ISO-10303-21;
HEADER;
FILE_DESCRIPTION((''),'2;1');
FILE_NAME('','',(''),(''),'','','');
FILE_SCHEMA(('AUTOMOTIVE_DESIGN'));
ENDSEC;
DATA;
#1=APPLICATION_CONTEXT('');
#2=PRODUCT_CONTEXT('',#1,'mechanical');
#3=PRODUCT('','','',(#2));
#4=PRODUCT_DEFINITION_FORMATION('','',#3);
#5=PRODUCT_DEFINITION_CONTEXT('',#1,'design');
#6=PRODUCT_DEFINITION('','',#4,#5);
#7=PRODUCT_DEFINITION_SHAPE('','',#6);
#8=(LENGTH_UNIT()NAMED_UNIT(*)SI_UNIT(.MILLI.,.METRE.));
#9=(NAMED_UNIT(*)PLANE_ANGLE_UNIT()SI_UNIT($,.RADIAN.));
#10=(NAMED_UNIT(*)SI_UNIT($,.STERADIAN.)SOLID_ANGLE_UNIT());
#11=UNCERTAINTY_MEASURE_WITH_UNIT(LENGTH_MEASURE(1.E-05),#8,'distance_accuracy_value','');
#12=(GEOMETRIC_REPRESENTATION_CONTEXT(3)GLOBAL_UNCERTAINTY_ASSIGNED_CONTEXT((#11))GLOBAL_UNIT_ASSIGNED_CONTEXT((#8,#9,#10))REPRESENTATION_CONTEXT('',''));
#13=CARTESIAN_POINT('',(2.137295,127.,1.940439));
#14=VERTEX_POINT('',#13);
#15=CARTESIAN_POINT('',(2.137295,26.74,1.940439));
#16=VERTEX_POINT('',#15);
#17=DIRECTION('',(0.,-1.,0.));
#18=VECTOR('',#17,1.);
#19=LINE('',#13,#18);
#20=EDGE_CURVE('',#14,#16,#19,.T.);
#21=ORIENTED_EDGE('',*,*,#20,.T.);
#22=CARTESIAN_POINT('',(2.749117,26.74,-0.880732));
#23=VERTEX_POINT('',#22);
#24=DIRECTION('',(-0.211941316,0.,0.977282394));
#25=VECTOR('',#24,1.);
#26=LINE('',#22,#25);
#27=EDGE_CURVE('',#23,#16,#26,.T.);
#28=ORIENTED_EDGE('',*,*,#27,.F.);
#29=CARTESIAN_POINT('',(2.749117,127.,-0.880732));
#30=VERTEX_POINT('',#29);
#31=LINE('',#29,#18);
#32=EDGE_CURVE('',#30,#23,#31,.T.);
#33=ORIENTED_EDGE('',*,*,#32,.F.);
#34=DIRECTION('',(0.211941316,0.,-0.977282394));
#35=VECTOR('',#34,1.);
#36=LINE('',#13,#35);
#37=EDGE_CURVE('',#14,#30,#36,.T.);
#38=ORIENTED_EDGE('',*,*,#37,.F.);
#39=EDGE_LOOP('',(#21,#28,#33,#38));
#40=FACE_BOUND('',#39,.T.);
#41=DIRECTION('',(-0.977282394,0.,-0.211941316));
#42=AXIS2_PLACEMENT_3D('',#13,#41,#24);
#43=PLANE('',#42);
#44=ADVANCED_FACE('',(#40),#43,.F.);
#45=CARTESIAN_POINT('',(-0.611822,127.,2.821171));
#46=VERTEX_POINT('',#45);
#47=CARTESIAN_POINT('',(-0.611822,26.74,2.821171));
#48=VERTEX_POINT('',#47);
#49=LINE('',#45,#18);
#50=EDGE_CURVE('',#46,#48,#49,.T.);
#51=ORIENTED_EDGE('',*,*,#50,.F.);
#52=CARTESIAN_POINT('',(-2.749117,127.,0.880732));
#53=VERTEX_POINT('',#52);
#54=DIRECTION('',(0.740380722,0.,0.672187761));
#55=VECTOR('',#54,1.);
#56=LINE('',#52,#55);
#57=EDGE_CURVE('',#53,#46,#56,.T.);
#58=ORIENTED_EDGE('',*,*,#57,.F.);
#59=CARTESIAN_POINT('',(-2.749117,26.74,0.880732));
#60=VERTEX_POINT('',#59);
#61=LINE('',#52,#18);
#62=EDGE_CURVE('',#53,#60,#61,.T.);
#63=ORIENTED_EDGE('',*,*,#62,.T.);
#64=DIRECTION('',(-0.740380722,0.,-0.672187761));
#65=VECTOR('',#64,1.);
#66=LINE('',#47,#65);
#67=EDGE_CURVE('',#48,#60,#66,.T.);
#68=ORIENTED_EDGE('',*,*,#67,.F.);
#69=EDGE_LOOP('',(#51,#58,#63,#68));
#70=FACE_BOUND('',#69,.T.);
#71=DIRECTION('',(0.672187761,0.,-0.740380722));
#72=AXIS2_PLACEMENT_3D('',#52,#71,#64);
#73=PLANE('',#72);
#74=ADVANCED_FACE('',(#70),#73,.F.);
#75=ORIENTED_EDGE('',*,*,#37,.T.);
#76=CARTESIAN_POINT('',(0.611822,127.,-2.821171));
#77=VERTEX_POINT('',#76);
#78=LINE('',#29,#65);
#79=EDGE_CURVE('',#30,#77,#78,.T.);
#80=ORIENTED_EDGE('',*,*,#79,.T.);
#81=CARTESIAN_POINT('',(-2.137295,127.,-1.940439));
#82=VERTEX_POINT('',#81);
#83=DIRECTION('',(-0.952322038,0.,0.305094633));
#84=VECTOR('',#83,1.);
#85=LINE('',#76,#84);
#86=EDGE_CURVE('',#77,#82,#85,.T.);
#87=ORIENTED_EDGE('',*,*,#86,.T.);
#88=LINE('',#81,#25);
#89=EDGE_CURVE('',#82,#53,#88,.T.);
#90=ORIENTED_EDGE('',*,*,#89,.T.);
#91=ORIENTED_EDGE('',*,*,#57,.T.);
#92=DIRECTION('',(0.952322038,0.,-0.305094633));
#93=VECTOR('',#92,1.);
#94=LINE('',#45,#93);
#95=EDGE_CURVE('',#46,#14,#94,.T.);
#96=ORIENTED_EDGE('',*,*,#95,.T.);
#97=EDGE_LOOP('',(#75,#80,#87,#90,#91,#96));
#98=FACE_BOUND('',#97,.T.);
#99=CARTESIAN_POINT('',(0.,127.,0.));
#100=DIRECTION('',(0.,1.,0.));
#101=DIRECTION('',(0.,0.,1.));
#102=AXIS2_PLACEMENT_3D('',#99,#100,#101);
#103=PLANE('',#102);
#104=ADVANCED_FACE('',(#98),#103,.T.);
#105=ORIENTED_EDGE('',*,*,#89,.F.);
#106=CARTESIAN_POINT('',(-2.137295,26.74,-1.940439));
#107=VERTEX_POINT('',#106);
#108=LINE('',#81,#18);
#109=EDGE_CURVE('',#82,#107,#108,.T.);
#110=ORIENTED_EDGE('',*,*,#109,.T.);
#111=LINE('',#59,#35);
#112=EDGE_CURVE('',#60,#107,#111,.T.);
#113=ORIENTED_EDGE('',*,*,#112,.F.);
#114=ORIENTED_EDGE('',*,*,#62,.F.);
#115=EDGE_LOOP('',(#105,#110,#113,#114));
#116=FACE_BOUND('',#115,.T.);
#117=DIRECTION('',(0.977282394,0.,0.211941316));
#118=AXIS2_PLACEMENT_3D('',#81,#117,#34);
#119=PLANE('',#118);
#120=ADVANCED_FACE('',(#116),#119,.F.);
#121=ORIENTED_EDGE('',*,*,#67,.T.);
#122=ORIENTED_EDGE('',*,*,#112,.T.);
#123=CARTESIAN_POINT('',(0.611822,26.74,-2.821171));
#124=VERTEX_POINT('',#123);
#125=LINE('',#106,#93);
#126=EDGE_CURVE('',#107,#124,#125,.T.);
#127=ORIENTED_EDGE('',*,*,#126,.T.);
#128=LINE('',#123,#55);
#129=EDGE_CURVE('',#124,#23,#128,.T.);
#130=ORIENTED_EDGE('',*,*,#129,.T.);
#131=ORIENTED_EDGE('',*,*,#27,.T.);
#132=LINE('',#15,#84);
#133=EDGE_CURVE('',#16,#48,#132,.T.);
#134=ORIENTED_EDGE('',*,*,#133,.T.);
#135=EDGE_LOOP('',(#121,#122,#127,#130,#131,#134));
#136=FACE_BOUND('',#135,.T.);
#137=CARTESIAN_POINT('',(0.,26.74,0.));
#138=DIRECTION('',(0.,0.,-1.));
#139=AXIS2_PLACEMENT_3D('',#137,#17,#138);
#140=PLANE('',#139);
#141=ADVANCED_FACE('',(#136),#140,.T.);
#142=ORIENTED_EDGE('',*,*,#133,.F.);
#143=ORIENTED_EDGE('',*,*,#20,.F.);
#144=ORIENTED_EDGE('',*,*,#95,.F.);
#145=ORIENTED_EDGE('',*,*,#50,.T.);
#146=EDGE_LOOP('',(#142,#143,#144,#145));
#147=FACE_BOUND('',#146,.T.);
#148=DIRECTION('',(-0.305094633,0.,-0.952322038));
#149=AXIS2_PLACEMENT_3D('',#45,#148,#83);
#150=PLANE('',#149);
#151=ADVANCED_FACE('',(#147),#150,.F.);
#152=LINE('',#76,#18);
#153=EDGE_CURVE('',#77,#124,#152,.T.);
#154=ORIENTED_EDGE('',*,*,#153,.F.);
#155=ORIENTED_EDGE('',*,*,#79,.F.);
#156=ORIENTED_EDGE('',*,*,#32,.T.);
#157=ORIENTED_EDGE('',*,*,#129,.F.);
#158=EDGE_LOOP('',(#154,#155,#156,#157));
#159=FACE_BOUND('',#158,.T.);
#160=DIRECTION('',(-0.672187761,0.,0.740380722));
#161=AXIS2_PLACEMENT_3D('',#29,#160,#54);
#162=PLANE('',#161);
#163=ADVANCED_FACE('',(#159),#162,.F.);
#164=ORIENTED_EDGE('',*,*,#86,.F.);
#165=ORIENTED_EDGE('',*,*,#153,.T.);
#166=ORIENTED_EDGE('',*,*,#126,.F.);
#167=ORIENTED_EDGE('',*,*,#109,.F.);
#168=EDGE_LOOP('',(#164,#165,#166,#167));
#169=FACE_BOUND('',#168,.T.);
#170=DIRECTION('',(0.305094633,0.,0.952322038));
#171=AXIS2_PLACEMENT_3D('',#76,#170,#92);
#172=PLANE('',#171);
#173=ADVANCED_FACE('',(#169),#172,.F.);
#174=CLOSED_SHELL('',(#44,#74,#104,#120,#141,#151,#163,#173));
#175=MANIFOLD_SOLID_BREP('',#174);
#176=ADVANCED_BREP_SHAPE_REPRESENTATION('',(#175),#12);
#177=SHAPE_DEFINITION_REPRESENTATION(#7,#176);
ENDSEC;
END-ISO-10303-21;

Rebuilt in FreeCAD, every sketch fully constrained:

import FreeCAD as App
import Part
import Sketcher
from FreeCAD import Vector


def add_polygon(sketch, points):
    """Adds a closed chain of lines whose ends are joined by coincident constraints."""
    first, n = sketch.GeometryCount, len(points)
    for a, b in zip(points, points[1:] + points[:1]):
        sketch.addGeometry(Part.LineSegment(App.Vector(*a, 0), App.Vector(*b, 0)), False)
    for i in range(n):
        sketch.addConstraint(Sketcher.Constraint("Coincident", first + i, 2, first + (i + 1) % n, 1))

doc = App.newDocument("Part")
params = doc.addObject("Spreadsheet::Sheet", "Params")
for row, (alias, value) in enumerate([
    ("pad1_length", "5 in"),
    ("pocket1_length", "1.5 in"),
    ("pad2_length", "0.1 in"),
    ("pocket2_length", "50 mm"),
    ("pad3_length", "25 mm"),
    ("pad4_length", "13.5 mm"),
    ("pad5_length", "0.8 in"),
], start=1):
    params.set(f"A{row}", alias)
    params.set(f"B{row}", "=" + value)
    params.setAlias(f"B{row}", alias)

body = doc.addObject("PartDesign::Body", "Body")

sketch1 = body.newObject("Sketcher::SketchObject", "Sketch")
sketch1.AttachmentSupport = (doc.getObject("XZ_Plane"), [""])
sketch1.MapMode = "FlatFace"
add_polygon(sketch1, [(2.1, 1.9), (2.7, -0.9), (0.6, -2.8), (-2.1, -1.9), (-2.7, 0.9), (-0.6, 2.8)])
sketch1.addConstraint(Sketcher.Constraint("Symmetric", 0, 2, 3, 2, -1, 1))
sketch1.addConstraint(Sketcher.Constraint("Symmetric", 1, 2, 4, 2, -1, 1))
sketch1.addConstraint(Sketcher.Constraint("Symmetric", 2, 2, 5, 2, -1, 1))
sketch1.addConstraint(Sketcher.Constraint("Equal", 0, 1))
sketch1.addConstraint(Sketcher.Constraint("Equal", 1, 2))
sketch1.addConstraint(Sketcher.Constraint("Distance", 0, 2.886751))
sketch1.addConstraint(Sketcher.Constraint("DistanceX", -1, 1, 1, 2, 0.611822))
sketch1.addConstraint(Sketcher.Constraint("DistanceY", 1, 2, -1, 1, 2.821171))
sketch1.addConstraint(Sketcher.Constraint("DistanceY", 2, 2, -1, 1, 1.940439))
pad1 = body.newObject("PartDesign::Pad", "Pad")
pad1.Profile = sketch1
pad1.setExpression("Length", "Params.pad1_length")
pad1.Reversed = True

sketch2 = body.newObject("Sketcher::SketchObject", "Sketch001")
sketch2.AttachmentSupport = (doc.getObject("XZ_Plane"), [""])
sketch2.MapMode = "FlatFace"
add_polygon(sketch2, [(-13, 10), (-13, -8), (7, -8), (7, 10)])
sketch2.addConstraint(Sketcher.Constraint("Vertical", 0))
sketch2.addConstraint(Sketcher.Constraint("Horizontal", 1))
sketch2.addConstraint(Sketcher.Constraint("Vertical", 2))
sketch2.addConstraint(Sketcher.Constraint("Horizontal", 3))
sketch2.addConstraint(Sketcher.Constraint("DistanceX", 0, 2, -1, 1, 13.2192))
sketch2.addConstraint(Sketcher.Constraint("DistanceX", 1, 1, 1, 2, 20.194547))
sketch2.addConstraint(Sketcher.Constraint("DistanceY", 0, 2, 0, 1, 18.170774))
sketch2.addConstraint(Sketcher.Constraint("DistanceY", 0, 2, -1, 1, 8.313967))
pocket1 = body.newObject("PartDesign::Pocket", "Pocket")
pocket1.Profile = sketch2
pocket1.setExpression("Length", "Params.pocket1_length")

sketch3 = body.newObject("Sketcher::SketchObject", "Sketch002")
sketch3.AttachmentSupport = (doc.getObject("XZ_Plane"), [""])
sketch3.MapMode = "FlatFace"
sketch3.AttachmentOffset = App.Placement(Vector(0, 0, -1.5 * 25.4), App.Rotation())
add_polygon(sketch3, [(0.6, -2.8), (2.7, -0.9), (2.1, 1.9), (-0.6, 2.8), (-2.7, 0.9), (-2.1, -1.9)])
sketch3.addConstraint(Sketcher.Constraint("Symmetric", 0, 2, 3, 2, -1, 1))
sketch3.addConstraint(Sketcher.Constraint("Symmetric", 1, 2, 4, 2, -1, 1))
sketch3.addConstraint(Sketcher.Constraint("Symmetric", 2, 2, 5, 2, -1, 1))
sketch3.addConstraint(Sketcher.Constraint("Equal", 0, 1))
sketch3.addConstraint(Sketcher.Constraint("Equal", 1, 2))
sketch3.addConstraint(Sketcher.Constraint("Distance", 0, 2.886751))
sketch3.addConstraint(Sketcher.Constraint("DistanceY", -1, 1, 1, 2, 1.940439))
sketch3.addConstraint(Sketcher.Constraint("DistanceX", 2, 2, -1, 1, 0.611822))
sketch3.addConstraint(Sketcher.Constraint("DistanceY", -1, 1, 2, 2, 2.821171))
pad2 = body.newObject("PartDesign::Pad", "Pad001")
pad2.Profile = sketch3
pad2.setExpression("Length", "Params.pad2_length")

sketch4 = body.newObject("Sketcher::SketchObject", "Sketch003")
sketch4.AttachmentSupport = (doc.getObject("XZ_Plane"), [""])
sketch4.MapMode = "FlatFace"
sketch4.AttachmentOffset = App.Placement(Vector(0, 0, -1.4 * 25.4), App.Rotation())
add_polygon(sketch4, [(-19, 10), (-19, -12), (16, -12), (16, 10)])
sketch4.addConstraint(Sketcher.Constraint("Vertical", 0))
sketch4.addConstraint(Sketcher.Constraint("Horizontal", 1))
sketch4.addConstraint(Sketcher.Constraint("Vertical", 2))
sketch4.addConstraint(Sketcher.Constraint("Horizontal", 3))
sketch4.addConstraint(Sketcher.Constraint("DistanceY", 0, 2, 0, 1, 22.340459))
sketch4.addConstraint(Sketcher.Constraint("DistanceX", 1, 1, 1, 2, 34.517573))
sketch4.addConstraint(Sketcher.Constraint("DistanceX", -1, 1, 1, 2, 15.910529))
sketch4.addConstraint(Sketcher.Constraint("DistanceY", -1, 1, 2, 2, 10.137651))
pocket2 = body.newObject("PartDesign::Pocket", "Pocket001")
pocket2.Profile = sketch4
pocket2.setExpression("Length", "Params.pocket2_length")

sketch5 = body.newObject("Sketcher::SketchObject", "Sketch004")
sketch5.AttachmentSupport = (doc.getObject("XZ_Plane"), [""])
sketch5.MapMode = "FlatFace"
sketch5.AttachmentOffset = App.Placement(Vector(0, 0, -85.56), App.Rotation())
add_polygon(sketch5, [(0.6, -2.8), (2.7, -0.9), (2.1, 1.9), (-0.6, 2.8), (-2.7, 0.9), (-2.1, -1.9)])
sketch5.addConstraint(Sketcher.Constraint("Symmetric", 0, 2, 3, 2, -1, 1))
sketch5.addConstraint(Sketcher.Constraint("Symmetric", 1, 2, 4, 2, -1, 1))
sketch5.addConstraint(Sketcher.Constraint("Symmetric", 2, 2, 5, 2, -1, 1))
sketch5.addConstraint(Sketcher.Constraint("Equal", 0, 1))
sketch5.addConstraint(Sketcher.Constraint("Equal", 1, 2))
sketch5.addConstraint(Sketcher.Constraint("Distance", 0, 2.886751))
sketch5.addConstraint(Sketcher.Constraint("DistanceY", -1, 1, 1, 2, 1.940439))
sketch5.addConstraint(Sketcher.Constraint("DistanceX", 2, 2, -1, 1, 0.611822))
sketch5.addConstraint(Sketcher.Constraint("DistanceY", -1, 1, 2, 2, 2.821171))
pad3 = body.newObject("PartDesign::Pad", "Pad002")
pad3.Profile = sketch5
pad3.setExpression("Length", "Params.pad3_length")

sketch6 = body.newObject("Sketcher::SketchObject", "Sketch005")
sketch6.AttachmentSupport = (doc.getObject("XZ_Plane"), [""])
sketch6.MapMode = "FlatFace"
sketch6.AttachmentOffset = App.Placement(Vector(0, 0, -60.56), App.Rotation())
add_polygon(sketch6, [(0.6, -2.8), (2.7, -0.9), (2.1, 1.9), (-0.6, 2.8), (-2.7, 0.9), (-2.1, -1.9)])
sketch6.addConstraint(Sketcher.Constraint("Symmetric", 0, 2, 3, 2, -1, 1))
sketch6.addConstraint(Sketcher.Constraint("Symmetric", 1, 2, 4, 2, -1, 1))
sketch6.addConstraint(Sketcher.Constraint("Symmetric", 2, 2, 5, 2, -1, 1))
sketch6.addConstraint(Sketcher.Constraint("Equal", 0, 1))
sketch6.addConstraint(Sketcher.Constraint("Equal", 1, 2))
sketch6.addConstraint(Sketcher.Constraint("Distance", 0, 2.886751))
sketch6.addConstraint(Sketcher.Constraint("DistanceY", -1, 1, 1, 2, 1.940439))
sketch6.addConstraint(Sketcher.Constraint("DistanceX", 2, 2, -1, 1, 0.611822))
sketch6.addConstraint(Sketcher.Constraint("DistanceY", -1, 1, 2, 2, 2.821171))
pad4 = body.newObject("PartDesign::Pad", "Pad003")
pad4.Profile = sketch6
pad4.setExpression("Length", "Params.pad4_length")

sketch7 = body.newObject("Sketcher::SketchObject", "Sketch006")
sketch7.AttachmentSupport = (doc.getObject("XZ_Plane"), [""])
sketch7.MapMode = "FlatFace"
sketch7.AttachmentOffset = App.Placement(Vector(0, 0, -47.06), App.Rotation())
add_polygon(sketch7, [(0.6, -2.8), (2.7, -0.9), (2.1, 1.9), (-0.6, 2.8), (-2.7, 0.9), (-2.1, -1.9)])
sketch7.addConstraint(Sketcher.Constraint("Symmetric", 0, 2, 3, 2, -1, 1))
sketch7.addConstraint(Sketcher.Constraint("Symmetric", 1, 2, 4, 2, -1, 1))
sketch7.addConstraint(Sketcher.Constraint("Symmetric", 2, 2, 5, 2, -1, 1))
sketch7.addConstraint(Sketcher.Constraint("Equal", 0, 1))
sketch7.addConstraint(Sketcher.Constraint("Equal", 1, 2))
sketch7.addConstraint(Sketcher.Constraint("Distance", 0, 2.886751))
sketch7.addConstraint(Sketcher.Constraint("DistanceY", -1, 1, 1, 2, 1.940439))
sketch7.addConstraint(Sketcher.Constraint("DistanceX", 2, 2, -1, 1, 0.611822))
sketch7.addConstraint(Sketcher.Constraint("DistanceY", -1, 1, 2, 2, 2.821171))
pad5 = body.newObject("PartDesign::Pad", "Pad004")
pad5.Profile = sketch7
pad5.setExpression("Length", "Params.pad5_length")

doc.recompute()
